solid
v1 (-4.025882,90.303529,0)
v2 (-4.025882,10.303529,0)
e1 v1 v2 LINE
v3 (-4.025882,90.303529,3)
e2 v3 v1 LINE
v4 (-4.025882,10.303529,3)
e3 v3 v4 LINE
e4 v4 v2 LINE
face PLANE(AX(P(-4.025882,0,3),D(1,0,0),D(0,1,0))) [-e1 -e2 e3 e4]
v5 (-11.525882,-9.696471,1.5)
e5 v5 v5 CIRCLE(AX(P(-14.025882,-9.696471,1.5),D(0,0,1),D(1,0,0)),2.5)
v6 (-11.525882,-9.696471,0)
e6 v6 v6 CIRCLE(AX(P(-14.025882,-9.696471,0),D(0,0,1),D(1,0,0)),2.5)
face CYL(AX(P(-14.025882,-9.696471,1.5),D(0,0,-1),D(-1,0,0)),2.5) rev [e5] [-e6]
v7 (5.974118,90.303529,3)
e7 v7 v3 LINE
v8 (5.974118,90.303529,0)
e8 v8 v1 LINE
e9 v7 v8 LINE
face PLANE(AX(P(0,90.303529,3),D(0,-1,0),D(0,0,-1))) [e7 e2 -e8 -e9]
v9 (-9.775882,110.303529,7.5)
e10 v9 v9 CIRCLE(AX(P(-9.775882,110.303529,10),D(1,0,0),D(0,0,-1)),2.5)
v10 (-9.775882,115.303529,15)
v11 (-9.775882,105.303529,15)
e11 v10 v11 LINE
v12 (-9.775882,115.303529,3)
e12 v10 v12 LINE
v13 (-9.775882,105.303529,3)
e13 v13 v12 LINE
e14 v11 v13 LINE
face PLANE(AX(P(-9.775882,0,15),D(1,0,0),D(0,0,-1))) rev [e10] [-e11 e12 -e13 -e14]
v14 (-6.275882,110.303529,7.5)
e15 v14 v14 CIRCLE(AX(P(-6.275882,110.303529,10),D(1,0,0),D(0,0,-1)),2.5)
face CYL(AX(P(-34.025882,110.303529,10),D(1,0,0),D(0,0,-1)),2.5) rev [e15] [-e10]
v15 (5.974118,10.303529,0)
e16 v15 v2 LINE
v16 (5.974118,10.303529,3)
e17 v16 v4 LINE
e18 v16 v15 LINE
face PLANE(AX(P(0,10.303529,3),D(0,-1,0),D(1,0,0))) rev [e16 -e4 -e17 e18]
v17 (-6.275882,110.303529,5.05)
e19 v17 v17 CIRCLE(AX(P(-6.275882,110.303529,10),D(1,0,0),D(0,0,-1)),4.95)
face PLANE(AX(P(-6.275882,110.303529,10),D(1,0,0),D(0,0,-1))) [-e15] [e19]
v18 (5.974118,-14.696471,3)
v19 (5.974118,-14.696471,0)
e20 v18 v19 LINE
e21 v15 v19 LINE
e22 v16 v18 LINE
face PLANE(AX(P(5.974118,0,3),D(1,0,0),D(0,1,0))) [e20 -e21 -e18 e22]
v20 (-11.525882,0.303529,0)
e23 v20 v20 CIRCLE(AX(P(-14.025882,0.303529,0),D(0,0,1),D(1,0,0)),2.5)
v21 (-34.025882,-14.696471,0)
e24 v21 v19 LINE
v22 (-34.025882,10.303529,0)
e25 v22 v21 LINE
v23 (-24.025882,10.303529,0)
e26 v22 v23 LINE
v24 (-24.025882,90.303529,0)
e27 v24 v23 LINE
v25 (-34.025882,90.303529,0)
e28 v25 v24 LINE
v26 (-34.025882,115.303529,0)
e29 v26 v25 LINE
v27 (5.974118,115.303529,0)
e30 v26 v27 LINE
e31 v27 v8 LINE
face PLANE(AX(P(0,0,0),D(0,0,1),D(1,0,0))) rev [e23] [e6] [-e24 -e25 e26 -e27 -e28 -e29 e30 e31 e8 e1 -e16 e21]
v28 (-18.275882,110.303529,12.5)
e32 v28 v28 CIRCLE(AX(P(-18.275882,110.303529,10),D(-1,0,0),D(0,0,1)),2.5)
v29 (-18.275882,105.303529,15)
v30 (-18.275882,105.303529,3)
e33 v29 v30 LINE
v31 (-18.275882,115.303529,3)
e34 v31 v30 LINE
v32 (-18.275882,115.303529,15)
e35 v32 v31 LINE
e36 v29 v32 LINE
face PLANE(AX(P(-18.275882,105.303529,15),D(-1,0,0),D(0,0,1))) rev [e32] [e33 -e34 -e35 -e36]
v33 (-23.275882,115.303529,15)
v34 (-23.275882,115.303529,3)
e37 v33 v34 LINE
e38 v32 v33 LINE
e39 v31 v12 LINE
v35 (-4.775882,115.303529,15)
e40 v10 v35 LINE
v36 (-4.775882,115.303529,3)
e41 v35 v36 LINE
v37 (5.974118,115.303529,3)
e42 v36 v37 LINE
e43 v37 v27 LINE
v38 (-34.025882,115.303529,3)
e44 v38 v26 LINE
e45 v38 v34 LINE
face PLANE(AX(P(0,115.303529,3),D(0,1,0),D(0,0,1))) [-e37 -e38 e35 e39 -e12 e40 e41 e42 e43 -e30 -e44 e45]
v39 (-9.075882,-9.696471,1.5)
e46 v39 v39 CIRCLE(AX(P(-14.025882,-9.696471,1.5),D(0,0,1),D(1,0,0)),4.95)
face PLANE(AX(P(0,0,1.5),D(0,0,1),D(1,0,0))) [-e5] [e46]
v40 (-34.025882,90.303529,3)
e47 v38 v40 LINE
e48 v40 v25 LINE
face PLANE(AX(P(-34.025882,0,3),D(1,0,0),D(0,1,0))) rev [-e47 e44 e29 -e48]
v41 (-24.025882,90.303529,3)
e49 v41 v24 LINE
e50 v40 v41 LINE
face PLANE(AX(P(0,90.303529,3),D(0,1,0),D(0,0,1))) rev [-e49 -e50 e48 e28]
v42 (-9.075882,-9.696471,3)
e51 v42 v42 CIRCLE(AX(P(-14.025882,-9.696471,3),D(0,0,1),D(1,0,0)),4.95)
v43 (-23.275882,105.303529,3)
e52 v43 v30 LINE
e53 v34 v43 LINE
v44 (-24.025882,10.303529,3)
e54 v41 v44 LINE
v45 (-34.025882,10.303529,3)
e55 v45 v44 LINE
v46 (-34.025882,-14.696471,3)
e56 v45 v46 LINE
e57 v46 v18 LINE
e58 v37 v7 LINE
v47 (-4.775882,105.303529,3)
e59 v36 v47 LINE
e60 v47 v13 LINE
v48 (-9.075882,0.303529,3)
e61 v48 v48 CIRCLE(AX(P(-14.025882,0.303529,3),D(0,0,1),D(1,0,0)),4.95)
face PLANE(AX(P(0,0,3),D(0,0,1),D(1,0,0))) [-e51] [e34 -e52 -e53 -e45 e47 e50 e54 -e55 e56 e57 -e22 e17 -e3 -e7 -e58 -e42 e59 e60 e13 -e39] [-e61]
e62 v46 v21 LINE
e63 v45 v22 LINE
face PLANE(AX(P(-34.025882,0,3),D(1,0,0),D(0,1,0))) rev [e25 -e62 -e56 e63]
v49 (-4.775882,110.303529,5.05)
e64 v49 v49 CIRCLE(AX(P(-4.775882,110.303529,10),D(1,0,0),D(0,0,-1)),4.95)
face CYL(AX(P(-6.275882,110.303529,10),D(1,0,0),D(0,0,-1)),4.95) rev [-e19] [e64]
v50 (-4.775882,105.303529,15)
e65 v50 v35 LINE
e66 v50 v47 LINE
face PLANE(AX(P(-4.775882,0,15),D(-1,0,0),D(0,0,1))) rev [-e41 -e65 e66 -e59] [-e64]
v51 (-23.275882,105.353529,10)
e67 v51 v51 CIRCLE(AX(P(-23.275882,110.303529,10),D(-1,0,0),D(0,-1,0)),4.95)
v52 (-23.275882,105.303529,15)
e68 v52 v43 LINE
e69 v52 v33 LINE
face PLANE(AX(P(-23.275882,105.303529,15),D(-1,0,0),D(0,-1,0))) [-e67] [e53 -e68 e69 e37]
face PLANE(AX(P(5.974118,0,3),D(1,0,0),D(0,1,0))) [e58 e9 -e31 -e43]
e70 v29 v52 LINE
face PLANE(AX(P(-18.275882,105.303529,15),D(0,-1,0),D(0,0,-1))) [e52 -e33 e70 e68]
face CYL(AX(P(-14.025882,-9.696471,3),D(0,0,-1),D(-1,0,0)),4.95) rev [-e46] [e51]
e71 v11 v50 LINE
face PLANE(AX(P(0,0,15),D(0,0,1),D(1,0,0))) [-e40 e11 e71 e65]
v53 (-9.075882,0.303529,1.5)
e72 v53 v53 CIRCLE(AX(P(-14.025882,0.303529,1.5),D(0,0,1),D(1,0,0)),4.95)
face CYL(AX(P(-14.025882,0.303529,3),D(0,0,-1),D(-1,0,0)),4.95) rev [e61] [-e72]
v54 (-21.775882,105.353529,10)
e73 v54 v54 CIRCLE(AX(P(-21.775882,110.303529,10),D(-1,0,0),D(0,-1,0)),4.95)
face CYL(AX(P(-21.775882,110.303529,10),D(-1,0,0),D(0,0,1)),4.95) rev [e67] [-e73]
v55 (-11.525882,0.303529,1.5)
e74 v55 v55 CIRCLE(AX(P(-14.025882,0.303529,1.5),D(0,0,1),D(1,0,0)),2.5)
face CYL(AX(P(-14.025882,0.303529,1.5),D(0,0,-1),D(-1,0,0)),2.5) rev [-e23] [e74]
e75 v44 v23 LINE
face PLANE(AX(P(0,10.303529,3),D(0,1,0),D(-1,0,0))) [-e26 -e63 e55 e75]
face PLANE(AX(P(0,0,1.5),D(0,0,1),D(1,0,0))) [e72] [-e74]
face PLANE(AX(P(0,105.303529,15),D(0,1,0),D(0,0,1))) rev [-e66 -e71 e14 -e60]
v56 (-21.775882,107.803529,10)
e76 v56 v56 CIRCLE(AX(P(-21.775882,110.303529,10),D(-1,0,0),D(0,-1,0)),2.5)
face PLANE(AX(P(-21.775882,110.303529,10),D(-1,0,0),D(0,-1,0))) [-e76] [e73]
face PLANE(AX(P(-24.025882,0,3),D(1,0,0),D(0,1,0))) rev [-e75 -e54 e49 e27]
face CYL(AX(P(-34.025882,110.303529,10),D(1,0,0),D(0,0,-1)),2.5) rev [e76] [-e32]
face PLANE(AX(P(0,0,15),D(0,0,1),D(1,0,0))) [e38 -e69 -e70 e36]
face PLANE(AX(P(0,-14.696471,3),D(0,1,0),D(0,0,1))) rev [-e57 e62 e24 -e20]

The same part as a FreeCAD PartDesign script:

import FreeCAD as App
import Part
import Sketcher

V = App.Vector
Q = App.Units.Quantity


def add_polygon(sketch, points):
    """Adds a closed chain of lines whose ends are joined by coincident constraints."""
    first, n = sketch.GeometryCount, len(points)
    for a, b in zip(points, points[1:] + points[:1]):
        sketch.addGeometry(Part.LineSegment(App.Vector(*a, 0), App.Vector(*b, 0)), False)
    for i in range(n):
        sketch.addConstraint(Sketcher.Constraint("Coincident", first + i, 2, first + (i + 1) % n, 1))

doc = App.newDocument("Part")
body = doc.addObject("PartDesign::Body", "Body")

sketch1 = doc.addObject("Sketcher::SketchObject", "Sketch")
body.addObject(sketch1)
sketch1.AttachmentSupport = (doc.XY_Plane, [""])
sketch1.MapMode = "FlatFace"
add_polygon(sketch1, [(-34, 115.3), (-34, 90.3), (-24, 90.3), (-24, 10.3), (-34, 10.3), (-34, -14.7), (6, -14.7), (6, 10.3), (-4, 10.3), (-4, 90.3), (6, 90.3), (6, 115.3)])
sketch1.addGeometry(Part.Circle(V(-14, -9.7, 0), V(0, 0, 1), 5), False)
sketch1.addGeometry(Part.Circle(V(-14, 0.3, 0), V(0, 0, 1), 5), False)
sketch1.addConstraint([
    Sketcher.Constraint("Vertical", 0),
    Sketcher.Constraint("Horizontal", 1),
    Sketcher.Constraint("Vertical", 2),
    Sketcher.Constraint("Horizontal", 3),
    Sketcher.Constraint("Vertical", 4),
    Sketcher.Constraint("Horizontal", 5),
    Sketcher.Constraint("Vertical", 6),
    Sketcher.Constraint("Horizontal", 7),
    Sketcher.Constraint("Vertical", 8),
    Sketcher.Constraint("Horizontal", 9),
    Sketcher.Constraint("Vertical", 10),
    Sketcher.Constraint("Horizontal", 11),
    Sketcher.Constraint("Equal", 12, 13),
    Sketcher.Constraint("Horizontal", 3, 2, 6, 2),
    Sketcher.Constraint("Horizontal", 1, 2, 8, 2),
    Sketcher.Constraint("Vertical", 12, 3, 13, 3),
    Sketcher.Constraint("Vertical", 0, 2, 3, 2),
    Sketcher.Constraint("Vertical", 6, 2, 9, 2),
    Sketcher.Constraint("Equal", 3, 7),
    Sketcher.Constraint("Equal", 0, 4),
    Sketcher.Constraint("Diameter", 12, Q("9.9 mm")),
    Sketcher.Constraint("DistanceX", 1, 1, 1, 2, Q("10 mm")),
    Sketcher.Constraint("DistanceX", 5, 1, 5, 2, Q("40 mm")),
    Sketcher.Constraint("DistanceY", 0, 2, 0, 1, Q("25 mm")),
    Sketcher.Constraint("DistanceY", 2, 2, 2, 1, Q("80 mm")),
    Sketcher.Constraint("DistanceY", 12, 3, 13, 3, Q("10 mm")),
    Sketcher.Constraint("DistanceX", 0, 2, 13, 3, Q("20 mm")),
    Sketcher.Constraint("DistanceY", 13, 3, 0, 2, Q("90 mm")),
    Sketcher.Constraint("DistanceY", 12, 3, -1, 1, Q("9.696471 mm")),
    Sketcher.Constraint("DistanceX", 12, 3, -1, 1, Q("14.025882 mm")),
])
pad1 = doc.addObject("PartDesign::Pad", "Pad")
body.addObject(pad1)
pad1.Profile = sketch1
pad1.Length = 3

sketch2 = doc.addObject("Sketcher::SketchObject", "Sketch001")
body.addObject(sketch2)
sketch2.AttachmentSupport = (doc.XY_Plane, [""])
sketch2.MapMode = "FlatFace"
sketch2.addGeometry([
    Part.Circle(V(-14, 0.3, 0), V(0, 0, 1), 5),
    Part.Circle(V(-14, 0.3, 0), V(0, 0, 1), 2.5),
    Part.Circle(V(-14, -9.7, 0), V(0, 0, 1), 5),
    Part.Circle(V(-14, -9.7, 0), V(0, 0, 1), 2.5),
], False)
sketch2.addConstraint([
    Sketcher.Constraint("Coincident", 1, 3, 0, 3),
    Sketcher.Constraint("Coincident", 3, 3, 2, 3),
    Sketcher.Constraint("Equal", 0, 2),
    Sketcher.Constraint("Equal", 1, 3),
    Sketcher.Constraint("Vertical", 1, 3, 2, 3),
    Sketcher.Constraint("Diameter", 1, Q("5 mm")),
    Sketcher.Constraint("Diameter", 0, Q("9.9 mm")),
    Sketcher.Constraint("DistanceY", 2, 3, 0, 3, Q("10 mm")),
    Sketcher.Constraint("DistanceY", -1, 1, 0, 3, Q("0.303529 mm")),
    Sketcher.Constraint("DistanceX", 0, 3, -1, 1, Q("14.025882 mm")),
])
pad2 = doc.addObject("PartDesign::Pad", "Pad001")
body.addObject(pad2)
pad2.Profile = sketch2
pad2.Length = 1.5

sketch3 = doc.addObject("Sketcher::SketchObject", "Sketch002")
body.addObject(sketch3)
sketch3.AttachmentSupport = (doc.XY_Plane, [""])
sketch3.MapMode = "FlatFace"
add_polygon(sketch3, [(-10, 115), (-10, 105), (-5, 105), (-5, 115)])
add_polygon(sketch3, [(-23, 115), (-23, 105), (-18, 105), (-18, 115)])
sketch3.addConstraint([
    Sketcher.Constraint("Vertical", 0),
    Sketcher.Constraint("Horizontal", 1),
    Sketcher.Constraint("Vertical", 2),
    Sketcher.Constraint("Horizontal", 3),
    Sketcher.Constraint("Vertical", 4),
    Sketcher.Constraint("Horizontal", 5),
    Sketcher.Constraint("Vertical", 6),
    Sketcher.Constraint("Horizontal", 7),
    Sketcher.Constraint("Horizontal", 1, 2, 4, 2),
    Sketcher.Constraint("Horizontal", 3, 2, 6, 2),
    Sketcher.Constraint("Equal", 3, 5),
    Sketcher.Constraint("DistanceX", 1, 1, 1, 2, Q("5 mm")),
    Sketcher.Constraint("DistanceY", 0, 2, 0, 1, Q("10 mm")),
    Sketcher.Constraint("DistanceX", 4, 2, 0, 2, Q("13.5 mm")),
    Sketcher.Constraint("DistanceY", -1, 1, 0, 2, Q("105.303529 mm")),
    Sketcher.Constraint("DistanceX", 0, 2, -1, 1, Q("9.775882 mm")),
])
pad3 = doc.addObject("PartDesign::Pad", "Pad002")
body.addObject(pad3)
pad3.Profile = sketch3
pad3.Length = 15

sketch4 = doc.addObject("Sketcher::SketchObject", "Sketch003")
body.addObject(sketch4)
sketch4.AttachmentSupport = (doc.YZ_Plane, [""])
sketch4.MapMode = "FlatFace"
sketch4.AttachmentOffset = App.Placement(V(0, 0, -4.775882), App.Rotation())
sketch4.addGeometry([
    Part.Circle(V(110.3, 10, 0), V(0, 0, 1), 5),
    Part.Circle(V(110.3, 10, 0), V(0, 0, 1), 2.5),
], False)
sketch4.addConstraint([
    Sketcher.Constraint("Coincident", 1, 3, 0, 3),
    Sketcher.Constraint("Diameter", 1, Q("5 mm")),
    Sketcher.Constraint("Diameter", 0, Q("9.9 mm")),
    Sketcher.Constraint("DistanceY", -1, 1, 0, 3, Q("10 mm")),
    Sketcher.Constraint("DistanceX", -1, 1, 0, 3, Q("110.303529 mm")),
])
pocket1 = doc.addObject("PartDesign::Pocket", "Pocket")
body.addObject(pocket1)
pocket1.Profile = sketch4
pocket1.Length = 1.5

sketch5 = doc.addObject("Sketcher::SketchObject", "Sketch004")
body.addObject(sketch5)
sketch5.AttachmentSupport = (doc.YZ_Plane, [""])
sketch5.MapMode = "FlatFace"
sketch5.AttachmentOffset = App.Placement(V(0, 0, -21.775882), App.Rotation())
sketch5.addGeometry([
    Part.Circle(V(110.3, 10, 0), V(0, 0, 1), 5),
    Part.Circle(V(110.3, 10, 0), V(0, 0, 1), 2.5),
], False)
sketch5.addConstraint([
    Sketcher.Constraint("Coincident", 1, 3, 0, 3),
    Sketcher.Constraint("Diameter", 1, Q("5 mm")),
    Sketcher.Constraint("Diameter", 0, Q("9.9 mm")),
    Sketcher.Constraint("DistanceY", -1, 1, 0, 3, Q("10 mm")),
    Sketcher.Constraint("DistanceX", -1, 1, 0, 3, Q("110.303529 mm")),
])
pocket2 = doc.addObject("PartDesign::Pocket", "Pocket001")
body.addObject(pocket2)
pocket2.Profile = sketch5
pocket2.Length = 1.5

sketch6 = doc.addObject("Sketcher::SketchObject", "Sketch005")
body.addObject(sketch6)
sketch6.AttachmentSupport = (doc.YZ_Plane, [""])
sketch6.MapMode = "FlatFace"
sketch6.AttachmentOffset = App.Placement(V(0, 0, -4.775882), App.Rotation())
sketch6.addGeometry(Part.Circle(V(110.3, 10, 0), V(0, 0, 1), 2.5), False)
sketch6.addConstraint([
    Sketcher.Constraint("Diameter", 0, Q("5 mm")),
    Sketcher.Constraint("DistanceY", -1, 1, 0, 3, Q("10 mm")),
    Sketcher.Constraint("DistanceX", -1, 1, 0, 3, Q("110.303529 mm")),
])
pocket3 = doc.addObject("PartDesign::Pocket", "Pocket002")
body.addObject(pocket3)
pocket3.Profile = sketch6
pocket3.Type = "ThroughAll"

doc.recompute()
